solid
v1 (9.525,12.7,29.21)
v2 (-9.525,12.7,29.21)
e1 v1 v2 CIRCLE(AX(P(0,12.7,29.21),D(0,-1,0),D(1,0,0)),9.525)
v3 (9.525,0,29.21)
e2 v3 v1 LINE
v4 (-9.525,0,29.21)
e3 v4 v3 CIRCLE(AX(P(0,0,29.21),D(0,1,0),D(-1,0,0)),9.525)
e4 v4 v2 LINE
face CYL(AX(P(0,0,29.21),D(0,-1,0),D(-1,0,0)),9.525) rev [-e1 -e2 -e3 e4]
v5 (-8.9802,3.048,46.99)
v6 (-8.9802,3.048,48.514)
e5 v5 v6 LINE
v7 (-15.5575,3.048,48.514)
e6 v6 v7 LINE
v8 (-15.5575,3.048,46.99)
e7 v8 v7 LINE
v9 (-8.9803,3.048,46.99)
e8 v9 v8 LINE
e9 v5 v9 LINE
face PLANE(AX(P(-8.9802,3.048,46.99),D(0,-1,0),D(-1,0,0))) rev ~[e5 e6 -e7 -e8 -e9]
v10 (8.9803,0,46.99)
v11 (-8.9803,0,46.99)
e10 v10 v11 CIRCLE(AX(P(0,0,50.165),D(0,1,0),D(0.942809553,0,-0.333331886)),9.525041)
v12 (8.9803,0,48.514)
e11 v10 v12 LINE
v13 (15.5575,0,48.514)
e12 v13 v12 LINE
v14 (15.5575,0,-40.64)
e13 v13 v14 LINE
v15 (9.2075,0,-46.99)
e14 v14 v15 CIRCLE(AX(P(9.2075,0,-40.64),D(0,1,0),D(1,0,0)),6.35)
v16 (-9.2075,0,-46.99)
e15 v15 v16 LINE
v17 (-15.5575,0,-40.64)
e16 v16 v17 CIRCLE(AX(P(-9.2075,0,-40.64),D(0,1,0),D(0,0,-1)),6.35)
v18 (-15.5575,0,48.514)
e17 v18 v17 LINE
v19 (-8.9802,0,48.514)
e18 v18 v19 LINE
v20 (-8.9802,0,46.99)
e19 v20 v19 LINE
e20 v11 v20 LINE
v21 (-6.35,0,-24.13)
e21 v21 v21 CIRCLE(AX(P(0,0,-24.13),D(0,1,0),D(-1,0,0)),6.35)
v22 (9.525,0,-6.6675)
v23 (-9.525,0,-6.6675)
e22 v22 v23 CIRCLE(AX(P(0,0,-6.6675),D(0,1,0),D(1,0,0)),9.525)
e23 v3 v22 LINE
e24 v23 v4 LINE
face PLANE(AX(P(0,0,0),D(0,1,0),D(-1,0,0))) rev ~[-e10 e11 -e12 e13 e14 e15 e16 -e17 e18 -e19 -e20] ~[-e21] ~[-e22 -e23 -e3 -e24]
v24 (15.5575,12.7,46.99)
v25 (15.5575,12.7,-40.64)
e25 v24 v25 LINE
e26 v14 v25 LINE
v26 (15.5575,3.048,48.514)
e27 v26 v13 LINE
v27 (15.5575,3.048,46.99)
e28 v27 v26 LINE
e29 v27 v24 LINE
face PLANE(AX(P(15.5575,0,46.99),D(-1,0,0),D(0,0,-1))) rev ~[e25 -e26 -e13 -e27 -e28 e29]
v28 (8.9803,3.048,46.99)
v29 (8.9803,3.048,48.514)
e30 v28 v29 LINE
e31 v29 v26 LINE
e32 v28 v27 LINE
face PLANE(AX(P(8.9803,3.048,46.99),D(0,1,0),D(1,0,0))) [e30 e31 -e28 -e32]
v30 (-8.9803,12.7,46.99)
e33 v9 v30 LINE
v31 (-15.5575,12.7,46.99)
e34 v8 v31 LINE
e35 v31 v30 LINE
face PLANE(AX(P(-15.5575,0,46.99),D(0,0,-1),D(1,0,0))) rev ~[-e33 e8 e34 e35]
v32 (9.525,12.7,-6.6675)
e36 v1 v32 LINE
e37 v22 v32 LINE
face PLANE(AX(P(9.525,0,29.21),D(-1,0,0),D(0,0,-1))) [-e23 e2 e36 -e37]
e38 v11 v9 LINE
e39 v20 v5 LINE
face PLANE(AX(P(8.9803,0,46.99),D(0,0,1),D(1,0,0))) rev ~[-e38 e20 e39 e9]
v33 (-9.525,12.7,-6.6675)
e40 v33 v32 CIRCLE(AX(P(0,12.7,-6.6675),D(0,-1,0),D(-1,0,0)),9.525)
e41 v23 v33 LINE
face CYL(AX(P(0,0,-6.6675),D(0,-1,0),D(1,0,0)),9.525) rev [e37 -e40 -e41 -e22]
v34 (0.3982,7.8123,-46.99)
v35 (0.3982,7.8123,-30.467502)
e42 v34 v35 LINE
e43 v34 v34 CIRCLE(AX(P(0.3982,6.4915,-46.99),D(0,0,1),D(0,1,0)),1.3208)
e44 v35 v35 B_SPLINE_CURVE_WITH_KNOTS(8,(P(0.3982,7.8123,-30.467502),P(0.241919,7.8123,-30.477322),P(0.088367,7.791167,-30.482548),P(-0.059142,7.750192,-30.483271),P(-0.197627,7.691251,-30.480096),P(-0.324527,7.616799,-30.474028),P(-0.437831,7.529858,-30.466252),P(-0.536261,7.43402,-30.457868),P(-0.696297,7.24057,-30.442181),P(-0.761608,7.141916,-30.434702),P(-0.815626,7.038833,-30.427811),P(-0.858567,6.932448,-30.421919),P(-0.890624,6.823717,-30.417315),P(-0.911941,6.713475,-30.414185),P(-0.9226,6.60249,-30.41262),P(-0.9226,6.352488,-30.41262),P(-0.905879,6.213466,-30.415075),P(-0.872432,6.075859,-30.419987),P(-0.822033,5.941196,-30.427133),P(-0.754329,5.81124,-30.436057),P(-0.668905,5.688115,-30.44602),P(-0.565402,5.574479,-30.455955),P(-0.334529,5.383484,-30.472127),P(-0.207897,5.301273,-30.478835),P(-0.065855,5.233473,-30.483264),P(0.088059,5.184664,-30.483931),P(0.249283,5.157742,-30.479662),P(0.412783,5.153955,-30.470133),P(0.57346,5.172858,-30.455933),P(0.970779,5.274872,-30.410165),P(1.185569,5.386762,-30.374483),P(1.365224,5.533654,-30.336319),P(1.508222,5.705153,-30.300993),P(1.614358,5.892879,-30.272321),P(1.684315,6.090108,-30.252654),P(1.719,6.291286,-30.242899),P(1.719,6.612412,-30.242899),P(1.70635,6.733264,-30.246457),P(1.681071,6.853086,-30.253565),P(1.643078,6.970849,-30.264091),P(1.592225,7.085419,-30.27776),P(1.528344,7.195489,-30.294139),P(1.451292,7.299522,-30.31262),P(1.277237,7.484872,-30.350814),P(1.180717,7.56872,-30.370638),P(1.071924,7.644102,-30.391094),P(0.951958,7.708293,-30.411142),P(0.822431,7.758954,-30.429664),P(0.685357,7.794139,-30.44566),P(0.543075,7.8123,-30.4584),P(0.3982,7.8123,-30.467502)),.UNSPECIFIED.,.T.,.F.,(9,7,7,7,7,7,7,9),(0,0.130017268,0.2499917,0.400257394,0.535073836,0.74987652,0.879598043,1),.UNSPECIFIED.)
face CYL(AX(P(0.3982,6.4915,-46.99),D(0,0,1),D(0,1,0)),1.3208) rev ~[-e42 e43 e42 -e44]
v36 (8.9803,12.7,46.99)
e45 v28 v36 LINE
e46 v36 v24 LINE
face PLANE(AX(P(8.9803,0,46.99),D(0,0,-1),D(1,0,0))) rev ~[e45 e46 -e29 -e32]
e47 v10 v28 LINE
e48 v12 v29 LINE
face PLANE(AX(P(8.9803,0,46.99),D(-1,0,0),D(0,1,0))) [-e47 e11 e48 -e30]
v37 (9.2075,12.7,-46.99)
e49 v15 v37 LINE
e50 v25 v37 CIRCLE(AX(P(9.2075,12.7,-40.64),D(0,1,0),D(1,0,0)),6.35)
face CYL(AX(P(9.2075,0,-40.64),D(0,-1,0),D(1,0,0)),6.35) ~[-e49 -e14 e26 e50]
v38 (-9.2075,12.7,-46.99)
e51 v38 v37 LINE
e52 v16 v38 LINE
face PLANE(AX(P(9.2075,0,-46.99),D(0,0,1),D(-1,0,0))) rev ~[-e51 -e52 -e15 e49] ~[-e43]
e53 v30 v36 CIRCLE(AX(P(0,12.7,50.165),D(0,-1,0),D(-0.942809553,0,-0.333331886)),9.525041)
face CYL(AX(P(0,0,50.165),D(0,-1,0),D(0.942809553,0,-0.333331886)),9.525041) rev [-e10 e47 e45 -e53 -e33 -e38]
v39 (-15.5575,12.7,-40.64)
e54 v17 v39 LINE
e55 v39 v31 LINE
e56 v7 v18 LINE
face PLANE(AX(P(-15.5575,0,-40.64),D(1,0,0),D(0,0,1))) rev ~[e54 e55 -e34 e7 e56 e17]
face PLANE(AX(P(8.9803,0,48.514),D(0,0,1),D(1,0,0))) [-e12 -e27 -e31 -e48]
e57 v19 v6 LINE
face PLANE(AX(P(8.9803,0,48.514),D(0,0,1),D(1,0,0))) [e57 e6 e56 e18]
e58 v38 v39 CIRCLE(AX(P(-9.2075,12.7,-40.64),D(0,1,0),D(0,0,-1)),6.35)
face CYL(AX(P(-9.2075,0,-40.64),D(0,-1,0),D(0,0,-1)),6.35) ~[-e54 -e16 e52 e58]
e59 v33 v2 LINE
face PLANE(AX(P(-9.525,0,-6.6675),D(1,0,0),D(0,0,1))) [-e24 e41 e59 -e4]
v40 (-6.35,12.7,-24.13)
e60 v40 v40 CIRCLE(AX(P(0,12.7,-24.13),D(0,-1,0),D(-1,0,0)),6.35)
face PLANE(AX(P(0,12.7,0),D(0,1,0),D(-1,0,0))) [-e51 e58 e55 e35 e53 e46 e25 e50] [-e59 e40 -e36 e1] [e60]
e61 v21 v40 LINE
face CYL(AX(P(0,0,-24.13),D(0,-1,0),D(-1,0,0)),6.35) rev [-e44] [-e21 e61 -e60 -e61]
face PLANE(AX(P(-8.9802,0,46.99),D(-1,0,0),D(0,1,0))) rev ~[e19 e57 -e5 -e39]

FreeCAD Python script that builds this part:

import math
import FreeCAD as App
import Part
import Sketcher
from FreeCAD import Vector
Q = App.Units.Quantity

doc = App.newDocument("Part")
body = doc.addObject("PartDesign::Body", "Body")

# Sketch on XZ plane
sketch1 = doc.addObject("Sketcher::SketchObject", "Sketch")
body.addObject(sketch1)
sketch1.AttachmentSupport = (doc.XZ_Plane, [""])
sketch1.MapMode = "FlatFace"
sketch1.addGeometry(Part.ArcOfCircle(Part.Circle(Vector(9.2075, -40.64, 0), Vector(0, 0, 1), 6.35), math.radians(-90), math.radians(0)), False)
sketch1.addGeometry(Part.LineSegment(Vector(9.2075, -46.99, 0), Vector(-9.2075, -46.99, 0)), False)
sketch1.addGeometry(Part.ArcOfCircle(Part.Circle(Vector(-9.2075, -40.64, 0), Vector(0, 0, 1), 6.35), math.radians(180), math.radians(270)), False)
sketch1.addGeometry(Part.LineSegment(Vector(-15.5575, -40.64, 0), Vector(-15.5575, 46.99, 0)), False)
sketch1.addGeometry(Part.LineSegment(Vector(-15.5575, 46.99, 0), Vector(-8.9803, 46.99, 0)), False)
sketch1.addGeometry(Part.ArcOfCircle(Part.Circle(Vector(0, 50.165, 0), Vector(0, 0, 1), 9.525041), math.radians(-160.528867), math.radians(-19.471133)), False)
sketch1.addGeometry(Part.LineSegment(Vector(8.9803, 46.99, 0), Vector(15.5575, 46.99, 0)), False)
sketch1.addGeometry(Part.LineSegment(Vector(15.5575, 46.99, 0), Vector(15.5575, -40.64, 0)), False)
sketch1.addGeometry(Part.ArcOfCircle(Part.Circle(Vector(0, 29.21, 0), Vector(0, 0, 1), 9.525), math.radians(0), math.radians(180)), False)
sketch1.addGeometry(Part.LineSegment(Vector(-9.525, 29.21, 0), Vector(-9.525, -6.6675, 0)), False)
sketch1.addGeometry(Part.ArcOfCircle(Part.Circle(Vector(0, -6.6675, 0), Vector(0, 0, 1), 9.525), math.radians(180), math.radians(360)), False)
sketch1.addGeometry(Part.LineSegment(Vector(9.525, -6.6675, 0), Vector(9.525, 29.21, 0)), False)
sketch1.addGeometry(Part.Circle(Vector(0, -24.13, 0), Vector(0, 0, 1), 6.35), False)
sketch1.addConstraint(Sketcher.Constraint("Tangent", 0, 1, 1, 1))
sketch1.addConstraint(Sketcher.Constraint("Tangent", 1, 2, 2, 2))
sketch1.addConstraint(Sketcher.Constraint("Tangent", 2, 1, 3, 1))
sketch1.addConstraint(Sketcher.Constraint("Coincident", 3, 2, 4, 1))
sketch1.addConstraint(Sketcher.Constraint("Coincident", 4, 2, 5, 1))
sketch1.addConstraint(Sketcher.Constraint("Coincident", 5, 2, 6, 1))
sketch1.addConstraint(Sketcher.Constraint("Coincident", 6, 2, 7, 1))
sketch1.addConstraint(Sketcher.Constraint("Tangent", 7, 2, 0, 2))
sketch1.addConstraint(Sketcher.Constraint("Tangent", 8, 2, 9, 1))
sketch1.addConstraint(Sketcher.Constraint("Tangent", 9, 2, 10, 1))
sketch1.addConstraint(Sketcher.Constraint("Tangent", 10, 2, 11, 1))
sketch1.addConstraint(Sketcher.Constraint("Tangent", 11, 2, 8, 1))
sketch1.addConstraint(Sketcher.Constraint("Horizontal", 1))
sketch1.addConstraint(Sketcher.Constraint("Vertical", 3))
sketch1.addConstraint(Sketcher.Constraint("Horizontal", 4))
sketch1.addConstraint(Sketcher.Constraint("Horizontal", 6))
sketch1.addConstraint(Sketcher.Constraint("Vertical", 7))
sketch1.addConstraint(Sketcher.Constraint("Vertical", 9))
sketch1.addConstraint(Sketcher.Constraint("Vertical", 11))
sketch1.addConstraint(Sketcher.Constraint("Equal", 0, 2))
sketch1.addConstraint(Sketcher.Constraint("Equal", 5, 8))
sketch1.addConstraint(Sketcher.Constraint("Equal", 2, 12))
sketch1.addConstraint(Sketcher.Constraint("Symmetric", 4, 2, 5, 2, -2))
sketch1.addConstraint(Sketcher.Constraint("PointOnObject", 8, 3, -2))
sketch1.addConstraint(Sketcher.Constraint("PointOnObject", 12, 3, -2))
sketch1.addConstraint(Sketcher.Constraint("Equal", 4, 6))
sketch1.addConstraint(Sketcher.Constraint("Diameter", 12, Q("0.5 in")))
sketch1.addConstraint(Sketcher.Constraint("Radius", 5, Q("0.375 in")))
sketch1.addConstraint(Sketcher.Constraint("DistanceY", 0, 1, 12, 3, Q("0.9 in")))
sketch1.addConstraint(Sketcher.Constraint("DistanceY", 8, 3, 3, 2, Q("0.7 in")))
sketch1.addConstraint(Sketcher.Constraint("DistanceY", 9, 2, 9, 1, Q("1.4125 in")))
sketch1.addConstraint(Sketcher.Constraint("DistanceY", 0, 1, 8, 3, Q("3 in")))
sketch1.addConstraint(Sketcher.Constraint("DistanceY", 3, 2, 5, 3, Q("0.125 in")))
sketch1.addConstraint(Sketcher.Constraint("DistanceX", 3, 2, 6, 2, Q("1.225 in")))
sketch1.addConstraint(Sketcher.Constraint("DistanceY", 0, 3, -1, 1, Q("1.6 in")))
pad1 = doc.addObject("PartDesign::Pad", "Pad")
body.addObject(pad1)
pad1.Profile = sketch1
pad1.Length = Q("0.5 in")
pad1.Reversed = True

# Sketch on XY plane
sketch2 = doc.addObject("Sketcher::SketchObject", "Sketch001")
body.addObject(sketch2)
sketch2.AttachmentSupport = (doc.XY_Plane, [""])
sketch2.MapMode = "FlatFace"
sketch2.AttachmentOffset = App.Placement(Vector(0, 0, 1.85 * 25.4), App.Rotation())
sketch2.addGeometry(Part.LineSegment(Vector(-15.5575, 3.048, 0), Vector(-15.5575, 0, 0)), False)
sketch2.addGeometry(Part.LineSegment(Vector(-15.5575, 0, 0), Vector(-8.9802, 0, 0)), False)
sketch2.addGeometry(Part.LineSegment(Vector(-8.9802, 0, 0), Vector(-8.9802, 3.048, 0)), False)
sketch2.addGeometry(Part.LineSegment(Vector(-8.9802, 3.048, 0), Vector(-15.5575, 3.048, 0)), False)
sketch2.addGeometry(Part.LineSegment(Vector(8.9803, 0, 0), Vector(15.5575, 0, 0)), False)
sketch2.addGeometry(Part.LineSegment(Vector(15.5575, 0, 0), Vector(15.5575, 3.048, 0)), False)
sketch2.addGeometry(Part.LineSegment(Vector(15.5575, 3.048, 0), Vector(8.9803, 3.048, 0)), False)
sketch2.addGeometry(Part.LineSegment(Vector(8.9803, 3.048, 0), Vector(8.9803, 0, 0)), False)
sketch2.addConstraint(Sketcher.Constraint("Coincident", 0, 2, 1, 1))
sketch2.addConstraint(Sketcher.Constraint("Coincident", 1, 2, 2, 1))
sketch2.addConstraint(Sketcher.Constraint("Coincident", 2, 2, 3, 1))
sketch2.addConstraint(Sketcher.Constraint("Coincident", 3, 2, 0, 1))
sketch2.addConstraint(Sketcher.Constraint("Coincident", 4, 2, 5, 1))
sketch2.addConstraint(Sketcher.Constraint("Coincident", 5, 2, 6, 1))
sketch2.addConstraint(Sketcher.Constraint("Coincident", 6, 2, 7, 1))
sketch2.addConstraint(Sketcher.Constraint("Coincident", 7, 2, 4, 1))
sketch2.addConstraint(Sketcher.Constraint("Vertical", 0))
sketch2.addConstraint(Sketcher.Constraint("Horizontal", 1))
sketch2.addConstraint(Sketcher.Constraint("Vertical", 2))
sketch2.addConstraint(Sketcher.Constraint("Horizontal", 3))
sketch2.addConstraint(Sketcher.Constraint("Horizontal", 4))
sketch2.addConstraint(Sketcher.Constraint("Vertical", 5))
sketch2.addConstraint(Sketcher.Constraint("Horizontal", 6))
sketch2.addConstraint(Sketcher.Constraint("Vertical", 7))
sketch2.addConstraint(Sketcher.Constraint("Symmetric", 0, 2, 4, 2, -1, 1))
sketch2.addConstraint(Sketcher.Constraint("Symmetric", 2, 2, 6, 2, -2))
sketch2.addConstraint(Sketcher.Constraint("PointOnObject", 0, 2, -1))
sketch2.addConstraint(Sketcher.Constraint("DistanceY", 0, 2, 0, 1, Q("0.12 in")))
sketch2.addConstraint(Sketcher.Constraint("DistanceX", 0, 2, 4, 2, Q("1.225 in")))
sketch2.addConstraint(Sketcher.Constraint("DistanceX", 1, 1, 1, 2, Q("6.5773 mm")))
pad2 = doc.addObject("PartDesign::Pad", "Pad001")
body.addObject(pad2)
pad2.Profile = sketch2
pad2.Length = Q("0.06 in")

# Sketch on XY plane
sketch3 = doc.addObject("Sketcher::SketchObject", "Sketch002")
body.addObject(sketch3)
sketch3.AttachmentSupport = (doc.XY_Plane, [""])
sketch3.MapMode = "FlatFace"
sketch3.AttachmentOffset = App.Placement(Vector(0, 0, -1.85 * 25.4), App.Rotation())
sketch3.addGeometry(Part.Circle(Vector(0.3982, 6.4915, 0), Vector(0, 0, 1), 1.3208), False)
sketch3.addConstraint(Sketcher.Constraint("Diameter", 0, Q("0.104 in")))
sketch3.addConstraint(Sketcher.Constraint("DistanceX", -1, 1, 0, 3, Q("0.3982 mm")))
sketch3.addConstraint(Sketcher.Constraint("DistanceY", -1, 1, 0, 3, Q("6.4915 mm")))
doc.recompute()
hole = doc.addObject("PartDesign::Hole", "Hole")
body.addObject(hole)
hole.Profile = sketch3
hole.ThreadType = "None"
hole.Diameter = Q("0.104 in")
hole.DepthType = "Dimension"
hole.Depth = Q("0.7 in")
hole.DrillPoint = "Angled"
hole.DrillPointAngle = 118
hole.Reversed = True

doc.recompute()
